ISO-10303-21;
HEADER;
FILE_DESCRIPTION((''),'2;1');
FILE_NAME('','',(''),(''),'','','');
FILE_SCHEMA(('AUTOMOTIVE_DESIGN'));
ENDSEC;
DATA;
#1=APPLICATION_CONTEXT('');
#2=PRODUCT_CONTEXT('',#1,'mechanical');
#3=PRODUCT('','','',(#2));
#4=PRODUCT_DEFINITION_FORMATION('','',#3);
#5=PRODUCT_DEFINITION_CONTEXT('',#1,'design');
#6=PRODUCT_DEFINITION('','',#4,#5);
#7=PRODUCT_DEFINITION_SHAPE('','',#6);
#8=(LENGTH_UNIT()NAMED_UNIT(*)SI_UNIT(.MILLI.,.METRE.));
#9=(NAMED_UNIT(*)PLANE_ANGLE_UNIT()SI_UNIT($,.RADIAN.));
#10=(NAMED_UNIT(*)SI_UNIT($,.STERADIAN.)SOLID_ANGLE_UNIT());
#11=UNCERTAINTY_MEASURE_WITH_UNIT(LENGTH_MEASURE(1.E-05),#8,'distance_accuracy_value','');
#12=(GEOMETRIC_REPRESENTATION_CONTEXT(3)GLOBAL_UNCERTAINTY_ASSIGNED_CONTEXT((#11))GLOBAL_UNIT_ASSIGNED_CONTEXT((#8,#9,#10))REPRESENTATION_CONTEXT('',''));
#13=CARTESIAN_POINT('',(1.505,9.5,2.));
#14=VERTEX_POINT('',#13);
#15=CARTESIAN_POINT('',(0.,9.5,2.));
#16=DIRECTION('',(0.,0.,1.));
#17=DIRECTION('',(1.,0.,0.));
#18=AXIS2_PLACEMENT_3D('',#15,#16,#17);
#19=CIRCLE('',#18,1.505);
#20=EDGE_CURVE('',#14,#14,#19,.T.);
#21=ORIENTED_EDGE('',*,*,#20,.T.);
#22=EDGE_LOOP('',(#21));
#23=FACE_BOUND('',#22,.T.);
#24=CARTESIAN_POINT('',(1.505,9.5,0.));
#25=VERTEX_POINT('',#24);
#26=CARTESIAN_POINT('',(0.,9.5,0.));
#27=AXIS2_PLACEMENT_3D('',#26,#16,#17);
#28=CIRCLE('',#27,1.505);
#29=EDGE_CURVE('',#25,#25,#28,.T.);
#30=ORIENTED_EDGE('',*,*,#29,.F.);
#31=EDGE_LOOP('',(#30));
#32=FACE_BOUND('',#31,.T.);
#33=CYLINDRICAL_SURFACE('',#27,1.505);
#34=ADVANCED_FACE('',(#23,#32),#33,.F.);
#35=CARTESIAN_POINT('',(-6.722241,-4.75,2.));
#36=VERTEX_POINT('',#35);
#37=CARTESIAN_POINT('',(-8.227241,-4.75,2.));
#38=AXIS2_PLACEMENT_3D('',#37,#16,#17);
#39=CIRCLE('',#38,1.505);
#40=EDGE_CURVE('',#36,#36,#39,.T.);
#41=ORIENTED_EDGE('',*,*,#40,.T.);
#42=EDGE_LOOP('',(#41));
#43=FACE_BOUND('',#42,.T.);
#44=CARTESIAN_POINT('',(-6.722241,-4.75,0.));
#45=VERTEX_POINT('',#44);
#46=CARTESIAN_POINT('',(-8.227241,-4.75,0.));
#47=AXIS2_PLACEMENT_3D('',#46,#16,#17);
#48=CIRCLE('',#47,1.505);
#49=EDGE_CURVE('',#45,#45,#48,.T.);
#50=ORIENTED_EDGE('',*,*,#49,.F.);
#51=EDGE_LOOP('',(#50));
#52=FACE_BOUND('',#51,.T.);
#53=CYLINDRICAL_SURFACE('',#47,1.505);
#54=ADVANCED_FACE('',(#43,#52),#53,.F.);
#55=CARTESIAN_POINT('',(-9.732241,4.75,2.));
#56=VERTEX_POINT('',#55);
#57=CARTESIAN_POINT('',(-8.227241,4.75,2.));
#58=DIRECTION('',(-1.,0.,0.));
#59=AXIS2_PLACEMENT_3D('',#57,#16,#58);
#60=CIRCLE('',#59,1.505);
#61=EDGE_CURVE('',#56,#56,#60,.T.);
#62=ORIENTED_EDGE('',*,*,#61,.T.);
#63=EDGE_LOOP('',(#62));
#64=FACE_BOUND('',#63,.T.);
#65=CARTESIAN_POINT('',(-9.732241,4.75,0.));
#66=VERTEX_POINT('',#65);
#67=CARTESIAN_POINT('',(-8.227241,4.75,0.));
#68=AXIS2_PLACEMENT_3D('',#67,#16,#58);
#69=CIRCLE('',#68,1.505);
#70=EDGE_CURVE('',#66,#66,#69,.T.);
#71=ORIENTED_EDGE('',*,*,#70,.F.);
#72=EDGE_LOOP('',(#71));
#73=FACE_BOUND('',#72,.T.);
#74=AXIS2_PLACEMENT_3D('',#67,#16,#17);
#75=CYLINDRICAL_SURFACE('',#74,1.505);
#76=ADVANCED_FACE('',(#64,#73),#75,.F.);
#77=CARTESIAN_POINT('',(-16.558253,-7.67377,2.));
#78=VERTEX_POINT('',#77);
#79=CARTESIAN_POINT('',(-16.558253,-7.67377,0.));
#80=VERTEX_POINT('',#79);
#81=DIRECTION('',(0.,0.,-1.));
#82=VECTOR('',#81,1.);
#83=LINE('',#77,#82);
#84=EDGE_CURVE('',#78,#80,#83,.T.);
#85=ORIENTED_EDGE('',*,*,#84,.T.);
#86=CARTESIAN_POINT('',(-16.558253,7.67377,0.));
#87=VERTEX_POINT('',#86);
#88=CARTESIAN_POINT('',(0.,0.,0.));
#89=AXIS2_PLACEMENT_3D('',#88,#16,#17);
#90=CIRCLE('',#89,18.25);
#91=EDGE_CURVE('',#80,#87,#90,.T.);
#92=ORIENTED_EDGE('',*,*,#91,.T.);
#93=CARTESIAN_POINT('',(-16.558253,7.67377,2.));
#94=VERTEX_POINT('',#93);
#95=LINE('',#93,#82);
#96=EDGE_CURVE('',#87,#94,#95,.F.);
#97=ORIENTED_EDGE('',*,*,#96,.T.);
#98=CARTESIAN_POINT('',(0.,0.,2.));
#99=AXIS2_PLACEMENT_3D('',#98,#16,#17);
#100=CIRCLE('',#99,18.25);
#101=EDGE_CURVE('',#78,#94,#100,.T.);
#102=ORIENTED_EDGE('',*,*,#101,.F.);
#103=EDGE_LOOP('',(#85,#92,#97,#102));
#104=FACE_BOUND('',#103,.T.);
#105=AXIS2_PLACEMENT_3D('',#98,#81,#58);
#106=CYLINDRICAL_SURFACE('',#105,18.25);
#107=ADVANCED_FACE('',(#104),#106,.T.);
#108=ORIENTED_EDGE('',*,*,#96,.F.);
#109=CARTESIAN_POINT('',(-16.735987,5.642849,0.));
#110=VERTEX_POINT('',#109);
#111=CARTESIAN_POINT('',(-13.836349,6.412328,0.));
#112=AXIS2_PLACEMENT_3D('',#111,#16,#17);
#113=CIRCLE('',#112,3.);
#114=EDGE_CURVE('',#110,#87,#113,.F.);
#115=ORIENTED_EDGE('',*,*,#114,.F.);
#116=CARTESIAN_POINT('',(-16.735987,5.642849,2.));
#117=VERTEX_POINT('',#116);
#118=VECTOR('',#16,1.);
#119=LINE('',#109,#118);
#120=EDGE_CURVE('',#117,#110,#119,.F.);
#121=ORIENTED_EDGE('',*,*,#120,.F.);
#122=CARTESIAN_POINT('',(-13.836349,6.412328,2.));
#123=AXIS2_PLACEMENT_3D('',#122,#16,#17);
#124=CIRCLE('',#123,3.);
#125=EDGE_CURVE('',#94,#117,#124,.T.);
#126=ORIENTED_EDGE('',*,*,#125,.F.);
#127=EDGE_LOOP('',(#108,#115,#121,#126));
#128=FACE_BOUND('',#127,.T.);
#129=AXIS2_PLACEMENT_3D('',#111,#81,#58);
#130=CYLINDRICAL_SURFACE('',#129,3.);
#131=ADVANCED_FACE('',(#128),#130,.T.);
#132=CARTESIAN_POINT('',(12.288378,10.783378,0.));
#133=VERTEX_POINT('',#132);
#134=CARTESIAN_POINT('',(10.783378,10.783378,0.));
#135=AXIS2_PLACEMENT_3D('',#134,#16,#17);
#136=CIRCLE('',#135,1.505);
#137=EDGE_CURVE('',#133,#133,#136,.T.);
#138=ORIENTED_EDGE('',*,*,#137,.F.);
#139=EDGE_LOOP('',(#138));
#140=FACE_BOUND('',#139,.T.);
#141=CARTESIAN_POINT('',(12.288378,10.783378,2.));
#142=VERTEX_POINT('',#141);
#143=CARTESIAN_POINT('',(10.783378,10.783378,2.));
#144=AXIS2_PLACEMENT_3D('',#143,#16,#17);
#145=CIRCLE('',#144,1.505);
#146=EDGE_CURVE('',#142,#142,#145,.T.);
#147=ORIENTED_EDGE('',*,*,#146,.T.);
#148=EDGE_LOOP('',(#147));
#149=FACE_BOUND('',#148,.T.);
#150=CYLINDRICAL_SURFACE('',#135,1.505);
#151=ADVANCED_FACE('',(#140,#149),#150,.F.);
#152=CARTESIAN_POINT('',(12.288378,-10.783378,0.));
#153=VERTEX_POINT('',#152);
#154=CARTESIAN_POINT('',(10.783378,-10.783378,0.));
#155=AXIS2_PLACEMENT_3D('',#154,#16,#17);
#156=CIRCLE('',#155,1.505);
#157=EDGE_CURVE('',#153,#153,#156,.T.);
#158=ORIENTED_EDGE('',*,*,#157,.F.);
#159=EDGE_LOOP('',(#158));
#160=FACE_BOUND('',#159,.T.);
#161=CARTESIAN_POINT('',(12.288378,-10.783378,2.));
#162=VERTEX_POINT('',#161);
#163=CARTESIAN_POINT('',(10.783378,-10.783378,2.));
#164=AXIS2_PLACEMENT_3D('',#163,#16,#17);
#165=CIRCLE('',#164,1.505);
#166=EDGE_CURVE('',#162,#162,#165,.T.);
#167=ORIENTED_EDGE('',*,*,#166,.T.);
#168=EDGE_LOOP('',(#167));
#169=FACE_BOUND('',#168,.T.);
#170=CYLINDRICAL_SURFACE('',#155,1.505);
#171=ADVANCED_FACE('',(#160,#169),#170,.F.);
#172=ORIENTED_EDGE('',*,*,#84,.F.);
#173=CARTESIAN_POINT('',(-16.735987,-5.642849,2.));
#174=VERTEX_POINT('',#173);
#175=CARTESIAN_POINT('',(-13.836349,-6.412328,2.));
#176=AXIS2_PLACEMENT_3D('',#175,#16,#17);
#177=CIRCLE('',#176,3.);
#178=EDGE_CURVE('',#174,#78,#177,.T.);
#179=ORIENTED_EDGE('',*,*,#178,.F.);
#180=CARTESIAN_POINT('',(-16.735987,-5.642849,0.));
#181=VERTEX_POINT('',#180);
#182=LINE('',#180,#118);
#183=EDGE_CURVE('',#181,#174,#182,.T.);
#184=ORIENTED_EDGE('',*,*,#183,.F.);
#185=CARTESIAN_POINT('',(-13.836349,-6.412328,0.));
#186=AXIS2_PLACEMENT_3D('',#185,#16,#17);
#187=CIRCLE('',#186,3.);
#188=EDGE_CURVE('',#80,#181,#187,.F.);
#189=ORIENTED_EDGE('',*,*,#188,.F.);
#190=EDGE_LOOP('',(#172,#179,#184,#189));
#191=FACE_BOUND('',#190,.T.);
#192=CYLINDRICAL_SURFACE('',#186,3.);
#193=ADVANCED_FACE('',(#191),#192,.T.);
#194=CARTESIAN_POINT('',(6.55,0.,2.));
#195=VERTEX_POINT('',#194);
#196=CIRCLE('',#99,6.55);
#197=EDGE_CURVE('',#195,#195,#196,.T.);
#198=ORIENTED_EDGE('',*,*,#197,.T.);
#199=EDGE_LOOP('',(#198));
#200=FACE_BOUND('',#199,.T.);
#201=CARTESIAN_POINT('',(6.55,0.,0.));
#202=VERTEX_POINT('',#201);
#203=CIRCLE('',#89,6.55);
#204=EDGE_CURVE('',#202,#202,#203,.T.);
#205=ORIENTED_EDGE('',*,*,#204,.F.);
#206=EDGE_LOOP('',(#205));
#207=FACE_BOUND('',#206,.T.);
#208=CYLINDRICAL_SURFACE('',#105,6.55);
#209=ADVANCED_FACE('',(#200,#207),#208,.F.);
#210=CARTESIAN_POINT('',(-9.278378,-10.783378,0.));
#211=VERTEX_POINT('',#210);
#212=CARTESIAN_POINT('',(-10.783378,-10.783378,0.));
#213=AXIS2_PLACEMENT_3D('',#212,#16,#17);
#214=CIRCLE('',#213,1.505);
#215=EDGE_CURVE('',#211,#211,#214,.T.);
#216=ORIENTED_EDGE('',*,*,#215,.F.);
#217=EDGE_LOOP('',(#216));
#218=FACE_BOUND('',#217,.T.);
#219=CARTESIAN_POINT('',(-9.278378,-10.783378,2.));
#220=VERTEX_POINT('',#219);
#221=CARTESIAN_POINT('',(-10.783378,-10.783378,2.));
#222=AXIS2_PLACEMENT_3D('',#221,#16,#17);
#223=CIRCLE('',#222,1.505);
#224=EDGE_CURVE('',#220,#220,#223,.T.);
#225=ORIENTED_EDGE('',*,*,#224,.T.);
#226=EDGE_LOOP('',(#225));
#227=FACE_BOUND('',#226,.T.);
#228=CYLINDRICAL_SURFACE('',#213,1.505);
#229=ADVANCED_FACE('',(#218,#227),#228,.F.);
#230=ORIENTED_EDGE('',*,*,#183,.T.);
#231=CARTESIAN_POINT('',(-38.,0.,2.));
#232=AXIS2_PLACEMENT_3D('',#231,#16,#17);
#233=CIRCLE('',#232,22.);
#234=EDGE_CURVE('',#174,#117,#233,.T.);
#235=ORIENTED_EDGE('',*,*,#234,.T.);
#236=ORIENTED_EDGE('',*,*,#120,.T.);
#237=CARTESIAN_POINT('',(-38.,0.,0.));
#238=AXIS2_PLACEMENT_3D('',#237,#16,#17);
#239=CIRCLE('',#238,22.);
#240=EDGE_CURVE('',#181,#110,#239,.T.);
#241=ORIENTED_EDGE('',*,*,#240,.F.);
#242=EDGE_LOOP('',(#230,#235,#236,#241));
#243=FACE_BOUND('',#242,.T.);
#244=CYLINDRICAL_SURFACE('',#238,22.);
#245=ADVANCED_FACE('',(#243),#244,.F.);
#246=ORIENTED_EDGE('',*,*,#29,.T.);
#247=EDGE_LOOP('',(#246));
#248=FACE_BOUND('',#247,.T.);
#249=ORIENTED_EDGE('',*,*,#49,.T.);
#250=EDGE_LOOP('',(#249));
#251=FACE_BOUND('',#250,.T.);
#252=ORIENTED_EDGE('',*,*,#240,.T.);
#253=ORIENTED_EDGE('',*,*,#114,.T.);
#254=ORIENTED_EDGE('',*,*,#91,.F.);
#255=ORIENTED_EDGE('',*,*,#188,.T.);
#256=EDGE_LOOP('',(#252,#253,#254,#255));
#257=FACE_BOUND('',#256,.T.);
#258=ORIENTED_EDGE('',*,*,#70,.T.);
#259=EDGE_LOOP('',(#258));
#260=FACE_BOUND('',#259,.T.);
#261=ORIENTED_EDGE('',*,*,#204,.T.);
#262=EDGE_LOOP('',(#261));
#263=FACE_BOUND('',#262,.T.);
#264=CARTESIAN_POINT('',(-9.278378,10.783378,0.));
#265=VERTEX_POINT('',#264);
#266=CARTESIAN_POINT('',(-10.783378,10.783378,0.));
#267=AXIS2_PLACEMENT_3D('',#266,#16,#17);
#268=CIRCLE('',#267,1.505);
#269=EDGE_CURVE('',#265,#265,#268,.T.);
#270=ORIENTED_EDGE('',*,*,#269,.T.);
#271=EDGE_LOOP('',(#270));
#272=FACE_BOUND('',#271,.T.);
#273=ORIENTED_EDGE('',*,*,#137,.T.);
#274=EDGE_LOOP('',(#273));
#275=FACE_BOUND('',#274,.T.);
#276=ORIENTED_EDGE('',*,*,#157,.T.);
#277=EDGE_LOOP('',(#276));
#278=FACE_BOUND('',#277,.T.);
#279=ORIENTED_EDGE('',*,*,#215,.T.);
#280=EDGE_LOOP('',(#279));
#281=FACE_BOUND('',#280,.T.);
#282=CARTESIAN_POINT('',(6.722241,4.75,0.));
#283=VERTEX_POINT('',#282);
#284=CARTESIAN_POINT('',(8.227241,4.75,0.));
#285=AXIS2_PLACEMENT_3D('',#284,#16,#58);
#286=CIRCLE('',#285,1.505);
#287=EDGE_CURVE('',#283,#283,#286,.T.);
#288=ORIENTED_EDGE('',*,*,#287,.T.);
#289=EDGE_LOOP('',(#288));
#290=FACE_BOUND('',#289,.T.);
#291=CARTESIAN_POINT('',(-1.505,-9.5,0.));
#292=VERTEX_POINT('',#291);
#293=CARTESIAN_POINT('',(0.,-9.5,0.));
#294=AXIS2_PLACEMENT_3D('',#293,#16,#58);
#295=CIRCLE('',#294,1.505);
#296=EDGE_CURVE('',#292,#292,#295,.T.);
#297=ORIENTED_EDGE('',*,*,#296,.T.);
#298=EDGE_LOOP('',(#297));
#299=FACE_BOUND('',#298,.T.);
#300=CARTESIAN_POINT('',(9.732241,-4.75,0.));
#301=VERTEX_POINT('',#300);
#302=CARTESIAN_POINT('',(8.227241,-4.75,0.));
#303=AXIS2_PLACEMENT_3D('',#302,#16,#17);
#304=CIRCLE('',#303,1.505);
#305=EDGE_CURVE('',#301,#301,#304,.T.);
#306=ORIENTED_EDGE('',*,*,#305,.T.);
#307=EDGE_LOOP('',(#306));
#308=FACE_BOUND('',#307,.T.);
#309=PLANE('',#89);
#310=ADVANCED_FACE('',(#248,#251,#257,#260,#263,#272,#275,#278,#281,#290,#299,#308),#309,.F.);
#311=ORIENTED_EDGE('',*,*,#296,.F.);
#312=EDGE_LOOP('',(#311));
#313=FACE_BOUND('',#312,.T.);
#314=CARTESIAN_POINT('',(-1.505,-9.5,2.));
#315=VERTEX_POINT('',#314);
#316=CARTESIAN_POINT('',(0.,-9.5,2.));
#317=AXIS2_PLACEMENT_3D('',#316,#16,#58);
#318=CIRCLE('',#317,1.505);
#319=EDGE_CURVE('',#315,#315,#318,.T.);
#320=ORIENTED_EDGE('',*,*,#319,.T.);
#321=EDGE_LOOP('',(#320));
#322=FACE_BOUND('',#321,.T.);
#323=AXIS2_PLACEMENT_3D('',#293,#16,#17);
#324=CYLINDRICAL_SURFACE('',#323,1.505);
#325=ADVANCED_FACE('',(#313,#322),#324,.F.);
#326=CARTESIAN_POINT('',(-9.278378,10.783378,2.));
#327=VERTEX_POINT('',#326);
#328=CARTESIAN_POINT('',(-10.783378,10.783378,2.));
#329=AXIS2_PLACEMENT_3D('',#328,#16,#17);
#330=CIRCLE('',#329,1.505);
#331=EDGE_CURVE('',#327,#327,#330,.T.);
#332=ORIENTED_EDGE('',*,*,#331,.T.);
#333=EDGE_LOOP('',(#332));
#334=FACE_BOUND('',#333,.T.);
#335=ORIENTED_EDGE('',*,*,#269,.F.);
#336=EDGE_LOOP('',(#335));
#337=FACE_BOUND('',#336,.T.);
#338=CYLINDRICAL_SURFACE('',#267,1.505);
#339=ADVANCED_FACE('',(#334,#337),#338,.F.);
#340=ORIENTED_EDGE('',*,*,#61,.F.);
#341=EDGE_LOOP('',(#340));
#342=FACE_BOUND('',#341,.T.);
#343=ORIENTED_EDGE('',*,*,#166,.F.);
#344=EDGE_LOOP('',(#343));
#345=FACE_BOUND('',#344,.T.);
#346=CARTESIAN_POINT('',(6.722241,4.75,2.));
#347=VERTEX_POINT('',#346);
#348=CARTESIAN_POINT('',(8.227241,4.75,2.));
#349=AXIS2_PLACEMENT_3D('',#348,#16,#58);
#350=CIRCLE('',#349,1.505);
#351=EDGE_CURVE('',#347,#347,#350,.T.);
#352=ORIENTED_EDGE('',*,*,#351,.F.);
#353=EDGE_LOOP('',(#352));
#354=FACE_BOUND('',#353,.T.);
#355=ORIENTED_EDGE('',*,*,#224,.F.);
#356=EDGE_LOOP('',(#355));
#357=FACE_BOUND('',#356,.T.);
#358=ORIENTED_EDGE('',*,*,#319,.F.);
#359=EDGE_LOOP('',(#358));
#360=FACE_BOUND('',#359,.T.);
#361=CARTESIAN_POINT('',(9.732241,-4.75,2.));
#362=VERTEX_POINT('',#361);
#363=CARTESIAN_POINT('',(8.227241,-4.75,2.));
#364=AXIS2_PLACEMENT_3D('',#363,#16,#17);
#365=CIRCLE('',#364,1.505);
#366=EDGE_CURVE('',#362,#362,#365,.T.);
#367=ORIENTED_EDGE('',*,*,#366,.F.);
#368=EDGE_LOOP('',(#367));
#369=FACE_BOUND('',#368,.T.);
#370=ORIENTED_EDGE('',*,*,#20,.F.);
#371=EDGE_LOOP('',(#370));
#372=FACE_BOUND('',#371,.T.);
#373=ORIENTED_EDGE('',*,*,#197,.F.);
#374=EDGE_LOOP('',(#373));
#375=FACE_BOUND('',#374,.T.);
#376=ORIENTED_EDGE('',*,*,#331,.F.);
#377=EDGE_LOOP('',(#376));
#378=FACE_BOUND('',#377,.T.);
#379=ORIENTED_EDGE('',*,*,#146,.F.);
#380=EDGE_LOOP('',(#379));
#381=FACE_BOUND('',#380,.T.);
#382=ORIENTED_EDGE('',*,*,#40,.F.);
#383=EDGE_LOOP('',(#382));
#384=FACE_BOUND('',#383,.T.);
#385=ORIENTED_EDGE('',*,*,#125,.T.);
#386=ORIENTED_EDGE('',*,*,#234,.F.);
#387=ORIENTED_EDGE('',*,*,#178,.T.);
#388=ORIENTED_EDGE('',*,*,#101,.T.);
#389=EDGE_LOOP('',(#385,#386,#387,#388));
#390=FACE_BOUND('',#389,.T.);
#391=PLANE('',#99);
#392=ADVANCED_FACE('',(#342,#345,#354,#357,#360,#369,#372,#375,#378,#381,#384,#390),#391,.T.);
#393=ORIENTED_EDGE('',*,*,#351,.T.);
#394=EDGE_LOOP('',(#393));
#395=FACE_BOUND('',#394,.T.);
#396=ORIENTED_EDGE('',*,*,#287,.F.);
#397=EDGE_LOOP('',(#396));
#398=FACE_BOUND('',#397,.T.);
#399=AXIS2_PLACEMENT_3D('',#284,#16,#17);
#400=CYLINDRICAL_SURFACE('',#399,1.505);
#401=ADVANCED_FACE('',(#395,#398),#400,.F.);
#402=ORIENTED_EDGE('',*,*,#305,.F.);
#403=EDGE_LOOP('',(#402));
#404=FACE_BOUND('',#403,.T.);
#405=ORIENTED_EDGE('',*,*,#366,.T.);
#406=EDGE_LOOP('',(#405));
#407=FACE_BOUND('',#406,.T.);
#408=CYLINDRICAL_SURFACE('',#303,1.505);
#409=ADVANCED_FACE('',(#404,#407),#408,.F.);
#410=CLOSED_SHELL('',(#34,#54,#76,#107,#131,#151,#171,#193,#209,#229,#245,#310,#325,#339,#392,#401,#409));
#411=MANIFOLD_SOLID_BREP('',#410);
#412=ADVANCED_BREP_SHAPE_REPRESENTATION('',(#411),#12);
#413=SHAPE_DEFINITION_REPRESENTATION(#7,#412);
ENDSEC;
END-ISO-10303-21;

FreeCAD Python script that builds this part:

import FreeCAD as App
import Part
import Sketcher

V = App.Vector
Q = App.Units.Quantity


def edges_at(feature, points):
    """Names of the edges that pass closest to the given points."""
    edges = feature.Shape.Edges
    near = lambda p: min(range(len(edges)), key=lambda i: edges[i].distToShape(Part.Vertex(*p))[0])
    return sorted({f"Edge{near(p) + 1}" for p in points})

doc = App.newDocument("Part")
body = doc.addObject("PartDesign::Body", "Body")

# Sketch on XY plane
sketch1 = body.newObject("Sketcher::SketchObject", "Sketch")
sketch1.AttachmentSupport = (doc.getObject("XY_Plane"), [""])
sketch1.MapMode = "FlatFace"
sketch1.addGeometry(Part.Circle(V(0, 0, 0), V(0, 0, 1), 18), False)
sketch1.addGeometry(Part.Circle(V(0, 0, 0), V(0, 0, 1), 7), False)
sketch1.addConstraint(Sketcher.Constraint("Coincident", 0, 3, -1, 1))
sketch1.addConstraint(Sketcher.Constraint("Coincident", 1, 3, -1, 1))
sketch1.addConstraint(Sketcher.Constraint("Diameter", 0, Q("36.5 mm")))
sketch1.addConstraint(Sketcher.Constraint("Diameter", 1, Q("13.1 mm")))
pad1 = body.newObject("PartDesign::Pad", "Pad")
pad1.Profile = sketch1
pad1.Length = 2

# Sketch on XY plane
sketch2 = body.newObject("Sketcher::SketchObject", "Sketch001")
sketch2.AttachmentSupport = (doc.getObject("XY_Plane"), [""])
sketch2.MapMode = "FlatFace"
sketch2.AttachmentOffset = App.Placement(V(0, 0, 2), App.Rotation())
sketch2.addGeometry(Part.Circle(V(-38, 0, 0), V(0, 0, 1), 22), False)
sketch2.addConstraint(Sketcher.Constraint("PointOnObject", 0, 3, -1))
sketch2.addConstraint(Sketcher.Constraint("Diameter", 0, Q("44 mm")))
sketch2.addConstraint(Sketcher.Constraint("DistanceX", 0, 3, -1, 1, Q("38 mm")))
pocket1 = body.newObject("PartDesign::Pocket", "Pocket")
pocket1.Profile = sketch2
pocket1.Length = 2

# Sketch on XY plane
sketch3 = body.newObject("Sketcher::SketchObject", "Sketch002")
sketch3.AttachmentSupport = (doc.getObject("XY_Plane"), [""])
sketch3.MapMode = "FlatFace"
sketch3.AttachmentOffset = App.Placement(V(0, 0, 2), App.Rotation())
sketch3.addGeometry(Part.Circle(V(0, 9.5, 0), V(0, 0, 1), 1.5), False)
sketch3.addGeometry(Part.Circle(V(8.2, -4.8, 0), V(0, 0, 1), 1.5), False)
sketch3.addGeometry(Part.Circle(V(-8.2, -4.8, 0), V(0, 0, 1), 1.5), False)
sketch3.addConstraint(Sketcher.Constraint("Equal", 0, 1))
sketch3.addConstraint(Sketcher.Constraint("Equal", 1, 2))
sketch3.addConstraint(Sketcher.Constraint("Symmetric", 1, 3, 2, 3, -2))
sketch3.addConstraint(Sketcher.Constraint("PointOnObject", 0, 3, -2))
sketch3.addConstraint(Sketcher.Constraint("Diameter", 0, Q("3.01 mm")))
sketch3.addConstraint(Sketcher.Constraint("DistanceY", -1, 1, 0, 3, Q("9.5 mm")))
sketch3.addConstraint(Sketcher.Constraint("DistanceY", 1, 3, -1, 1, Q("4.75 mm")))
sketch3.addConstraint(Sketcher.Constraint("DistanceX", -1, 1, 1, 3, Q("8.227241 mm")))
pocket2 = body.newObject("PartDesign::Pocket", "Pocket001")
pocket2.Profile = sketch3
pocket2.Length = 2
doc.recompute()

polarpattern = body.newObject("PartDesign::PolarPattern", "PolarPattern")
polarpattern.Originals = [pocket2]
polarpattern.Axis = (doc.getObject("Z_Axis"), [""])
polarpattern.Angle = 360
polarpattern.Occurrences = 2
body.Tip = polarpattern

# Sketch on XY plane
sketch4 = body.newObject("Sketcher::SketchObject", "Sketch003")
sketch4.AttachmentSupport = (doc.getObject("XY_Plane"), [""])
sketch4.MapMode = "FlatFace"
sketch4.AttachmentOffset = App.Placement(V(0, 0, 2), App.Rotation())
sketch4.addGeometry(Part.Circle(V(-10.8, 10.8, 0), V(0, 0, 1), 1.5), False)
sketch4.addGeometry(Part.Circle(V(10.8, 10.8, 0), V(0, 0, 1), 1.5), False)
sketch4.addGeometry(Part.Circle(V(10.8, -10.8, 0), V(0, 0, 1), 1.5), False)
sketch4.addGeometry(Part.Circle(V(-10.8, -10.8, 0), V(0, 0, 1), 1.5), False)
sketch4.addConstraint(Sketcher.Constraint("Equal", 0, 1))
sketch4.addConstraint(Sketcher.Constraint("Equal", 1, 2))
sketch4.addConstraint(Sketcher.Constraint("Equal", 2, 3))
sketch4.addConstraint(Sketcher.Constraint("Symmetric", 0, 3, 2, 3, -1, 1))
sketch4.addConstraint(Sketcher.Constraint("Symmetric", 1, 3, 3, 3, -1, 1))
sketch4.addConstraint(Sketcher.Constraint("Symmetric", 0, 3, 1, 3, -2))
sketch4.addConstraint(Sketcher.Constraint("Diameter", 0, Q("3.01 mm")))
sketch4.addConstraint(Sketcher.Constraint("DistanceX", 0, 3, -1, 1, Q("10.783378 mm")))
sketch4.addConstraint(Sketcher.Constraint("DistanceY", -1, 1, 0, 3, Q("10.783378 mm")))
pocket3 = body.newObject("PartDesign::Pocket", "Pocket002")
pocket3.Profile = sketch4
pocket3.Length = 2
doc.recompute()

fillet = body.newObject("PartDesign::Fillet", "Fillet")
fillet.Base = (pocket3, edges_at(pocket3, [(-17.014, -6.602, 1), (-17.014, 6.602, 1)]))
fillet.Radius = 3

doc.recompute()
